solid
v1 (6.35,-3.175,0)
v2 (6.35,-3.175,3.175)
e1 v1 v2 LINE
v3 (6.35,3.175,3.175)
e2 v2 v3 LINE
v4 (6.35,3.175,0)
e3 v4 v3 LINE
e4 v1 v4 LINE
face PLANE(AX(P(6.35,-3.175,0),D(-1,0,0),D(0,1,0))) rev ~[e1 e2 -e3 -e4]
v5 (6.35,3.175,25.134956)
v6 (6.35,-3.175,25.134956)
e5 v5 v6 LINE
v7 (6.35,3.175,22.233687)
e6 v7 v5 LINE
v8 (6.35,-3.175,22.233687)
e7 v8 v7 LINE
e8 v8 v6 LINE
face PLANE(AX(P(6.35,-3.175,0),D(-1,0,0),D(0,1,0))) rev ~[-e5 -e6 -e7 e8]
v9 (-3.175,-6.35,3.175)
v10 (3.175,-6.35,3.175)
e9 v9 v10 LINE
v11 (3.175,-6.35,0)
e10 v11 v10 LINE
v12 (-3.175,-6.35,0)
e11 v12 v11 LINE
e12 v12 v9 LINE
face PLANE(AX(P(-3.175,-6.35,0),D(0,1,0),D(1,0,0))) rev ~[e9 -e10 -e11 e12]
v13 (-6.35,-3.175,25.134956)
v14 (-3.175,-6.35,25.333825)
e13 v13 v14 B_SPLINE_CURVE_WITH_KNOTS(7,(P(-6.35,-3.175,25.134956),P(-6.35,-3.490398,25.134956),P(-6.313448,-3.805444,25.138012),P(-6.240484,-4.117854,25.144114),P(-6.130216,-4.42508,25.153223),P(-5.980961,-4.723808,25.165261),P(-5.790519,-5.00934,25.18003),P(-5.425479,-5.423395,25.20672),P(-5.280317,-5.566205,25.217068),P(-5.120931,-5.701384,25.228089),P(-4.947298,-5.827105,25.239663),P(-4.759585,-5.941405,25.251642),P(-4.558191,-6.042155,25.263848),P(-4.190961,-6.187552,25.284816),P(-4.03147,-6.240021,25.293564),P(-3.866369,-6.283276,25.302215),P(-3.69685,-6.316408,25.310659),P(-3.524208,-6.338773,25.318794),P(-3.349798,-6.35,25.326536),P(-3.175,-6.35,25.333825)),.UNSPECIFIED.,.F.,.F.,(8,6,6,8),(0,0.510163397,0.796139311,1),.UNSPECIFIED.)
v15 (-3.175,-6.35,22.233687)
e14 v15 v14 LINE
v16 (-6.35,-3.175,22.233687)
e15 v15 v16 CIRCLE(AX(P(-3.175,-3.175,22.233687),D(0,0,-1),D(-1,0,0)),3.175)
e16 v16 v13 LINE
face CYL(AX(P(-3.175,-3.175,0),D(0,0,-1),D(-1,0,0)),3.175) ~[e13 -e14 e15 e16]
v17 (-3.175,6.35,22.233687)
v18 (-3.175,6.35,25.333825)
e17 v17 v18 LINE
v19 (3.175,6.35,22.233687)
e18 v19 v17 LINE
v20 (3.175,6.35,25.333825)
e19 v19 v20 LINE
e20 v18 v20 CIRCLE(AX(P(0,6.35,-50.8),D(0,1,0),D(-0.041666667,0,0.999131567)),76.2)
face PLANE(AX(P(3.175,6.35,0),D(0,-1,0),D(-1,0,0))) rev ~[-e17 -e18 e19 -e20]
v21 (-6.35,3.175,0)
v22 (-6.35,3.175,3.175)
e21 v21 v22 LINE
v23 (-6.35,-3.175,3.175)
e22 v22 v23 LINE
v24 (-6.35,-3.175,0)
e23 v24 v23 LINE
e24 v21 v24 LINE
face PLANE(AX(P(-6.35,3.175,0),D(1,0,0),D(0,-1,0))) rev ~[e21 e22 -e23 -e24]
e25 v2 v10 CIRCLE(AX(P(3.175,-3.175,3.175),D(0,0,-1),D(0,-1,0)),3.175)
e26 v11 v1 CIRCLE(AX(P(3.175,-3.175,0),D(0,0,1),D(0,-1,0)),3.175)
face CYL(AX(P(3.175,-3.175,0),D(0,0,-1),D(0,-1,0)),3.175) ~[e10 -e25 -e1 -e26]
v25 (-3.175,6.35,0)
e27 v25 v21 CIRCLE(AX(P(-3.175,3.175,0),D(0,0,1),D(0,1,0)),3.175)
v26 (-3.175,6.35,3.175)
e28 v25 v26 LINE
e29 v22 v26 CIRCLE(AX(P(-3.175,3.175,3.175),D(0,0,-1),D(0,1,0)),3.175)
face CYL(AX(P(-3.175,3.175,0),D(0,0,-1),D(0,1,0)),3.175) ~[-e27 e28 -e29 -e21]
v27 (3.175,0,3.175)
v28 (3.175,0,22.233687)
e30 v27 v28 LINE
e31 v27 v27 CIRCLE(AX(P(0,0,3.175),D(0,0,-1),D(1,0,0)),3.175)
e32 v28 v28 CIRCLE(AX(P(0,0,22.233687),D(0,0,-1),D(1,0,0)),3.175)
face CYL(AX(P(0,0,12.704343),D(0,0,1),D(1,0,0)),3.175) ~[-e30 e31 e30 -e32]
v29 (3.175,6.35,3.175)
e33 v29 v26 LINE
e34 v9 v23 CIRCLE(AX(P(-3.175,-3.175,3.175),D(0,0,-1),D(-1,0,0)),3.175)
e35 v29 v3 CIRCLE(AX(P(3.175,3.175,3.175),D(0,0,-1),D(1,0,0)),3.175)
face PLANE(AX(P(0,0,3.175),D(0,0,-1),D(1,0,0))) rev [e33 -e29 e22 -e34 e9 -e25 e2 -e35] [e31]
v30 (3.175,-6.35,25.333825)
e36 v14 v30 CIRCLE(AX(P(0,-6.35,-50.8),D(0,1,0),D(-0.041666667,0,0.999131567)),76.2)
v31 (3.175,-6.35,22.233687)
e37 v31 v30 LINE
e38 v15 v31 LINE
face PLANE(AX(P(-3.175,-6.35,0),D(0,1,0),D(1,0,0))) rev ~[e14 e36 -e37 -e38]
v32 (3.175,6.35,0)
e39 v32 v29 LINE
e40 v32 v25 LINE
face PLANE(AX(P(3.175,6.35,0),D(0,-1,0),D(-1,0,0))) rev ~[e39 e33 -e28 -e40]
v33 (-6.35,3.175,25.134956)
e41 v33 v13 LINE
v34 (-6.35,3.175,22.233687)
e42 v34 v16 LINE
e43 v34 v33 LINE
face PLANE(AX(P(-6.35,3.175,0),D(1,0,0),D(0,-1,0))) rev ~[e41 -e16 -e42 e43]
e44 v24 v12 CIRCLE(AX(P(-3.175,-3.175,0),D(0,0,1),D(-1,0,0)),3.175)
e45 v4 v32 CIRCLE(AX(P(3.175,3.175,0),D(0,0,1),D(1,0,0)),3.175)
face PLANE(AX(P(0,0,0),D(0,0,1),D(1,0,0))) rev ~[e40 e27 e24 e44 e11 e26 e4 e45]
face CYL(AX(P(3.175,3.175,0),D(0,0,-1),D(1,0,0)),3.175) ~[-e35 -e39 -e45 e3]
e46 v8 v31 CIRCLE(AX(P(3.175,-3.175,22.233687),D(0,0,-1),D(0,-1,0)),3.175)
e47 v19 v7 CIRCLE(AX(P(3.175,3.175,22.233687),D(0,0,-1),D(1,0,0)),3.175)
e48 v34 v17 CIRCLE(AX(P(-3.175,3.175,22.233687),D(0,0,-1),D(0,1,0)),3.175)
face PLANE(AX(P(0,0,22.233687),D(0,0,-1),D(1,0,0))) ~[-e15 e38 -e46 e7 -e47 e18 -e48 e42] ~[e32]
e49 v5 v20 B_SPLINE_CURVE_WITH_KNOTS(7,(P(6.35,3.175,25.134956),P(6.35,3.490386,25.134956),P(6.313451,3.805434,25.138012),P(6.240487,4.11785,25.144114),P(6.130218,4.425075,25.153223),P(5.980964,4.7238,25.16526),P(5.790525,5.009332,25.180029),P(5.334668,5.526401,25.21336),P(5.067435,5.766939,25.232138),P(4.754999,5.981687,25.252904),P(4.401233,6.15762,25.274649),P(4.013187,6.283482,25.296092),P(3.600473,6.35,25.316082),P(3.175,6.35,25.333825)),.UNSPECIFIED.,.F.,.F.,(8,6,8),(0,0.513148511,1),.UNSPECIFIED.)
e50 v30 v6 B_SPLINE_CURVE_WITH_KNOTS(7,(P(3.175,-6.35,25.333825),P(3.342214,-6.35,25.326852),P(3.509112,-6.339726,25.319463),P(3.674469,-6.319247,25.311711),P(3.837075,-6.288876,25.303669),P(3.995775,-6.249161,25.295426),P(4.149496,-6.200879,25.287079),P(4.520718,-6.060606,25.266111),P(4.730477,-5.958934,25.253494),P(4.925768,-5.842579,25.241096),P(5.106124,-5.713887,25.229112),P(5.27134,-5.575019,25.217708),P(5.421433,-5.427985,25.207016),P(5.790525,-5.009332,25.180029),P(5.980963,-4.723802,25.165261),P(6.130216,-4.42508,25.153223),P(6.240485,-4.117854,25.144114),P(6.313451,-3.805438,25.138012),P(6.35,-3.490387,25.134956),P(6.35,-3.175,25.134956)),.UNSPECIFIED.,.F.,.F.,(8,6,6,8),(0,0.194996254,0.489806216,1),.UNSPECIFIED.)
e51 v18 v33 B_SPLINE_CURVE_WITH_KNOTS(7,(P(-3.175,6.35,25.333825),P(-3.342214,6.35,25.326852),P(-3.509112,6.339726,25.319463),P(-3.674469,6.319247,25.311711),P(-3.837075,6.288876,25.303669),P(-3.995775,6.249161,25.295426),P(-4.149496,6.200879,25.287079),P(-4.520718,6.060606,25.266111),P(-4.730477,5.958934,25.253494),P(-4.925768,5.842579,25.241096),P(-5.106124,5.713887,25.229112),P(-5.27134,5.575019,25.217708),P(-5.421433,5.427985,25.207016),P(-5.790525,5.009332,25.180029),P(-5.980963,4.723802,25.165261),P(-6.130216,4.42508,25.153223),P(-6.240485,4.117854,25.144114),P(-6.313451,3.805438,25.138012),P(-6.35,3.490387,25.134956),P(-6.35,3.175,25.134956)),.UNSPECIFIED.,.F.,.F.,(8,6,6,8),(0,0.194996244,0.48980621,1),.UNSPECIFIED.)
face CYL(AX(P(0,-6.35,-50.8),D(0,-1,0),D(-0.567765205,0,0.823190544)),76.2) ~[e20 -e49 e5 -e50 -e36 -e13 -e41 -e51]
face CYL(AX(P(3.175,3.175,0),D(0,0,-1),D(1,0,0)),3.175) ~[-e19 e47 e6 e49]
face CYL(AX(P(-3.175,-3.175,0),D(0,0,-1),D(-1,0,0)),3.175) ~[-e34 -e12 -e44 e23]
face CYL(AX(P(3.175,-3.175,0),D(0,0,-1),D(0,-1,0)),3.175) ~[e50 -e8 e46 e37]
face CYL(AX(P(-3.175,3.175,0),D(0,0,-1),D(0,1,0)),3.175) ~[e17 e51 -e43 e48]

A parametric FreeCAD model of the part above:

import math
import FreeCAD as App
import Part
import Sketcher
from FreeCAD import Vector
Q = App.Units.Quantity


def add_polygon(sketch, points):
    """Adds a closed chain of lines whose ends are joined by coincident constraints."""
    first, n = sketch.GeometryCount, len(points)
    for a, b in zip(points, points[1:] + points[:1]):
        sketch.addGeometry(Part.LineSegment(App.Vector(*a, 0), App.Vector(*b, 0)), False)
    for i in range(n):
        sketch.addConstraint(Sketcher.Constraint("Coincident", first + i, 2, first + (i + 1) % n, 1))

doc = App.newDocument("Part")
params = doc.addObject("Spreadsheet::Sheet", "Params")
for row, (alias, value) in enumerate([
    ("sketch1_radius", "0.125 in"),
    ("sketch1_width", "0.25 in"),
    ("pad1_length", "1 in"),
    ("sketch2_radius", "3 in"),
    ("pocket1_length", "1 in"),
    ("sketch3_diameter", "4 in"),
    ("pocket2_length", "1 in"),
    ("groove_angle", "360 deg"),
], start=1):
    params.set(f"A{row}", alias)
    params.set(f"B{row}", "=" + value)
    params.setAlias(f"B{row}", alias)

body = doc.addObject("PartDesign::Body", "Body")

# Sketch on XY plane
sketch1 = body.newObject("Sketcher::SketchObject", "Sketch")
sketch1.AttachmentSupport = (doc.getObject("XY_Plane"), [""])
sketch1.MapMode = "FlatFace"
sketch1.addGeometry([
    Part.ArcOfCircle(Part.Circle(Vector(3.2, 3.2, 0), Vector(0, 0, 1), 3.2), math.radians(0), math.radians(90)),  # 0
    Part.LineSegment(Vector(3.2, 6.3, 0), Vector(-3.2, 6.3, 0)),  # 1
    Part.ArcOfCircle(Part.Circle(Vector(-3.2, 3.2, 0), Vector(0, 0, 1), 3.2), math.radians(90), math.radians(180)),  # 2
    Part.LineSegment(Vector(-6.3, 3.2, 0), Vector(-6.3, -3.2, 0)),  # 3
    Part.ArcOfCircle(Part.Circle(Vector(-3.2, -3.2, 0), Vector(0, 0, 1), 3.2), math.radians(180), math.radians(270)),  # 4
    Part.LineSegment(Vector(-3.2, -6.3, 0), Vector(3.2, -6.3, 0)),  # 5
    Part.ArcOfCircle(Part.Circle(Vector(3.2, -3.2, 0), Vector(0, 0, 1), 3.2), math.radians(-90), math.radians(0)),  # 6
    Part.LineSegment(Vector(6.3, -3.2, 0), Vector(6.3, 3.2, 0)),  # 7
], False)
sketch1.addConstraint([
    Sketcher.Constraint("Tangent", 0, 2, 1, 1),
    Sketcher.Constraint("Tangent", 1, 2, 2, 1),
    Sketcher.Constraint("Tangent", 2, 2, 3, 1),
    Sketcher.Constraint("Tangent", 3, 2, 4, 1),
    Sketcher.Constraint("Tangent", 4, 2, 5, 1),
    Sketcher.Constraint("Tangent", 5, 2, 6, 1),
    Sketcher.Constraint("Tangent", 6, 2, 7, 1),
    Sketcher.Constraint("Tangent", 7, 2, 0, 1),
    Sketcher.Constraint("Horizontal", 1),
    Sketcher.Constraint("Vertical", 3),
    Sketcher.Constraint("Horizontal", 5),
    Sketcher.Constraint("Vertical", 7),
    Sketcher.Constraint("Equal", 0, 2),
    Sketcher.Constraint("Equal", 2, 4),
    Sketcher.Constraint("Equal", 4, 6),
    Sketcher.Constraint("Symmetric", 0, 3, 4, 3, -1, 1),
    Sketcher.Constraint("Equal", 5, 3),
    Sketcher.Constraint("Radius", 0, Q("0.125 in")),
    Sketcher.Constraint("DistanceX", 1, 2, 1, 1, Q("0.25 in")),
])
sketch1.setExpression("Constraints[17]", "Params.sketch1_radius")
sketch1.setExpression("Constraints[18]", "Params.sketch1_width")
pad1 = body.newObject("PartDesign::Pad", "Pad")
pad1.Profile = sketch1
pad1.setExpression("Length", "Params.pad1_length")

# Sketch on XZ plane
sketch2 = body.newObject("Sketcher::SketchObject", "Sketch001")
sketch2.AttachmentSupport = (doc.getObject("XZ_Plane"), [""])
sketch2.MapMode = "FlatFace"
sketch2.AttachmentOffset = App.Placement(Vector(0, 0, 0.25 * 25.4), App.Rotation())
sketch2.addGeometry([
    Part.ArcOfCircle(Part.Circle(Vector(0, -51, 0), Vector(0, 0, 1), 76), math.radians(53), math.radians(125)),
    Part.LineSegment(Vector(46, 10, 0), Vector(46, 54, 0)),
    Part.LineSegment(Vector(46, 54, 0), Vector(-43, 54, 0)),
    Part.LineSegment(Vector(-43, 54, 0), Vector(-43, 12, 0)),
], False)
sketch2.addConstraint([
    Sketcher.Constraint("Coincident", 0, 1, 1, 1),
    Sketcher.Constraint("Coincident", 1, 2, 2, 1),
    Sketcher.Constraint("Coincident", 2, 2, 3, 1),
    Sketcher.Constraint("Coincident", 3, 2, 0, 2),
    Sketcher.Constraint("Horizontal", 2),
    Sketcher.Constraint("Vertical", 3),
    Sketcher.Constraint("PointOnObject", 0, 3, -2),
    Sketcher.Constraint("Radius", 0, Q("3 in")),
    Sketcher.Constraint("DistanceY", 0, 3, -1, 1, Q("2 in")),
    Sketcher.Constraint("DistanceX", 2, 2, 2, 1, Q("89.45045 mm")),
    Sketcher.Constraint("DistanceY", 3, 2, 3, 1, Q("41.632422 mm")),
    Sketcher.Constraint("DistanceX", -1, 1, 1, 2, Q("46.186741 mm")),
    Sketcher.Constraint("Distance", 1, Q("43.817118 mm")),
])
sketch2.setExpression("Constraints[7]", "Params.sketch2_radius")
pocket1 = body.newObject("PartDesign::Pocket", "Pocket")
pocket1.Profile = sketch2
pocket1.setExpression("Length", "Params.pocket1_length")

# Sketch on XZ plane
sketch3 = body.newObject("Sketcher::SketchObject", "Sketch002")
sketch3.AttachmentSupport = (doc.getObject("XZ_Plane"), [""])
sketch3.MapMode = "FlatFace"
sketch3.AttachmentOffset = App.Placement(Vector(0, 0, 0.25 * 25.4), App.Rotation())
sketch3.addGeometry(Part.Circle(Vector(0, -51, 0), Vector(0, 0, 1), 51), False)
sketch3.addConstraint([
    Sketcher.Constraint("PointOnObject", 0, 3, -2),
    Sketcher.Constraint("Diameter", 0, Q("4 in")),
    Sketcher.Constraint("DistanceY", 0, 3, -1, 1, Q("2 in")),
])
sketch3.setExpression("Constraints[1]", "Params.sketch3_diameter")
pocket2 = body.newObject("PartDesign::Pocket", "Pocket001")
pocket2.Profile = sketch3
pocket2.setExpression("Length", "Params.pocket2_length")

# Sketch on XZ plane
sketch4 = body.newObject("Sketcher::SketchObject", "Sketch003")
sketch4.AttachmentSupport = (doc.getObject("XZ_Plane"), [""])
sketch4.MapMode = "FlatFace"
add_polygon(sketch4, [(3, 22), (3, 3), (15, 3), (15, 22)])  # lines 0-3
sketch4.addConstraint([
    Sketcher.Constraint("Vertical", 0),
    Sketcher.Constraint("Horizontal", 1),
    Sketcher.Constraint("Vertical", 2),
    Sketcher.Constraint("Horizontal", 3),
    Sketcher.Constraint("DistanceX", -1, 1, 0, 2, Q("0.125 in")),
    Sketcher.Constraint("DistanceY", -1, 1, 0, 2, Q("0.125 in")),
    Sketcher.Constraint("DistanceX", 1, 1, 1, 2, Q("11.826209 mm")),
    Sketcher.Constraint("DistanceY", 0, 2, 0, 1, Q("19.058687 mm")),
])
groove = body.newObject("PartDesign::Groove", "Groove")
groove.Profile = sketch4
groove.ReferenceAxis = (sketch4, ["V_Axis"])
groove.setExpression("Angle", "Params.groove_angle")

doc.recompute()
